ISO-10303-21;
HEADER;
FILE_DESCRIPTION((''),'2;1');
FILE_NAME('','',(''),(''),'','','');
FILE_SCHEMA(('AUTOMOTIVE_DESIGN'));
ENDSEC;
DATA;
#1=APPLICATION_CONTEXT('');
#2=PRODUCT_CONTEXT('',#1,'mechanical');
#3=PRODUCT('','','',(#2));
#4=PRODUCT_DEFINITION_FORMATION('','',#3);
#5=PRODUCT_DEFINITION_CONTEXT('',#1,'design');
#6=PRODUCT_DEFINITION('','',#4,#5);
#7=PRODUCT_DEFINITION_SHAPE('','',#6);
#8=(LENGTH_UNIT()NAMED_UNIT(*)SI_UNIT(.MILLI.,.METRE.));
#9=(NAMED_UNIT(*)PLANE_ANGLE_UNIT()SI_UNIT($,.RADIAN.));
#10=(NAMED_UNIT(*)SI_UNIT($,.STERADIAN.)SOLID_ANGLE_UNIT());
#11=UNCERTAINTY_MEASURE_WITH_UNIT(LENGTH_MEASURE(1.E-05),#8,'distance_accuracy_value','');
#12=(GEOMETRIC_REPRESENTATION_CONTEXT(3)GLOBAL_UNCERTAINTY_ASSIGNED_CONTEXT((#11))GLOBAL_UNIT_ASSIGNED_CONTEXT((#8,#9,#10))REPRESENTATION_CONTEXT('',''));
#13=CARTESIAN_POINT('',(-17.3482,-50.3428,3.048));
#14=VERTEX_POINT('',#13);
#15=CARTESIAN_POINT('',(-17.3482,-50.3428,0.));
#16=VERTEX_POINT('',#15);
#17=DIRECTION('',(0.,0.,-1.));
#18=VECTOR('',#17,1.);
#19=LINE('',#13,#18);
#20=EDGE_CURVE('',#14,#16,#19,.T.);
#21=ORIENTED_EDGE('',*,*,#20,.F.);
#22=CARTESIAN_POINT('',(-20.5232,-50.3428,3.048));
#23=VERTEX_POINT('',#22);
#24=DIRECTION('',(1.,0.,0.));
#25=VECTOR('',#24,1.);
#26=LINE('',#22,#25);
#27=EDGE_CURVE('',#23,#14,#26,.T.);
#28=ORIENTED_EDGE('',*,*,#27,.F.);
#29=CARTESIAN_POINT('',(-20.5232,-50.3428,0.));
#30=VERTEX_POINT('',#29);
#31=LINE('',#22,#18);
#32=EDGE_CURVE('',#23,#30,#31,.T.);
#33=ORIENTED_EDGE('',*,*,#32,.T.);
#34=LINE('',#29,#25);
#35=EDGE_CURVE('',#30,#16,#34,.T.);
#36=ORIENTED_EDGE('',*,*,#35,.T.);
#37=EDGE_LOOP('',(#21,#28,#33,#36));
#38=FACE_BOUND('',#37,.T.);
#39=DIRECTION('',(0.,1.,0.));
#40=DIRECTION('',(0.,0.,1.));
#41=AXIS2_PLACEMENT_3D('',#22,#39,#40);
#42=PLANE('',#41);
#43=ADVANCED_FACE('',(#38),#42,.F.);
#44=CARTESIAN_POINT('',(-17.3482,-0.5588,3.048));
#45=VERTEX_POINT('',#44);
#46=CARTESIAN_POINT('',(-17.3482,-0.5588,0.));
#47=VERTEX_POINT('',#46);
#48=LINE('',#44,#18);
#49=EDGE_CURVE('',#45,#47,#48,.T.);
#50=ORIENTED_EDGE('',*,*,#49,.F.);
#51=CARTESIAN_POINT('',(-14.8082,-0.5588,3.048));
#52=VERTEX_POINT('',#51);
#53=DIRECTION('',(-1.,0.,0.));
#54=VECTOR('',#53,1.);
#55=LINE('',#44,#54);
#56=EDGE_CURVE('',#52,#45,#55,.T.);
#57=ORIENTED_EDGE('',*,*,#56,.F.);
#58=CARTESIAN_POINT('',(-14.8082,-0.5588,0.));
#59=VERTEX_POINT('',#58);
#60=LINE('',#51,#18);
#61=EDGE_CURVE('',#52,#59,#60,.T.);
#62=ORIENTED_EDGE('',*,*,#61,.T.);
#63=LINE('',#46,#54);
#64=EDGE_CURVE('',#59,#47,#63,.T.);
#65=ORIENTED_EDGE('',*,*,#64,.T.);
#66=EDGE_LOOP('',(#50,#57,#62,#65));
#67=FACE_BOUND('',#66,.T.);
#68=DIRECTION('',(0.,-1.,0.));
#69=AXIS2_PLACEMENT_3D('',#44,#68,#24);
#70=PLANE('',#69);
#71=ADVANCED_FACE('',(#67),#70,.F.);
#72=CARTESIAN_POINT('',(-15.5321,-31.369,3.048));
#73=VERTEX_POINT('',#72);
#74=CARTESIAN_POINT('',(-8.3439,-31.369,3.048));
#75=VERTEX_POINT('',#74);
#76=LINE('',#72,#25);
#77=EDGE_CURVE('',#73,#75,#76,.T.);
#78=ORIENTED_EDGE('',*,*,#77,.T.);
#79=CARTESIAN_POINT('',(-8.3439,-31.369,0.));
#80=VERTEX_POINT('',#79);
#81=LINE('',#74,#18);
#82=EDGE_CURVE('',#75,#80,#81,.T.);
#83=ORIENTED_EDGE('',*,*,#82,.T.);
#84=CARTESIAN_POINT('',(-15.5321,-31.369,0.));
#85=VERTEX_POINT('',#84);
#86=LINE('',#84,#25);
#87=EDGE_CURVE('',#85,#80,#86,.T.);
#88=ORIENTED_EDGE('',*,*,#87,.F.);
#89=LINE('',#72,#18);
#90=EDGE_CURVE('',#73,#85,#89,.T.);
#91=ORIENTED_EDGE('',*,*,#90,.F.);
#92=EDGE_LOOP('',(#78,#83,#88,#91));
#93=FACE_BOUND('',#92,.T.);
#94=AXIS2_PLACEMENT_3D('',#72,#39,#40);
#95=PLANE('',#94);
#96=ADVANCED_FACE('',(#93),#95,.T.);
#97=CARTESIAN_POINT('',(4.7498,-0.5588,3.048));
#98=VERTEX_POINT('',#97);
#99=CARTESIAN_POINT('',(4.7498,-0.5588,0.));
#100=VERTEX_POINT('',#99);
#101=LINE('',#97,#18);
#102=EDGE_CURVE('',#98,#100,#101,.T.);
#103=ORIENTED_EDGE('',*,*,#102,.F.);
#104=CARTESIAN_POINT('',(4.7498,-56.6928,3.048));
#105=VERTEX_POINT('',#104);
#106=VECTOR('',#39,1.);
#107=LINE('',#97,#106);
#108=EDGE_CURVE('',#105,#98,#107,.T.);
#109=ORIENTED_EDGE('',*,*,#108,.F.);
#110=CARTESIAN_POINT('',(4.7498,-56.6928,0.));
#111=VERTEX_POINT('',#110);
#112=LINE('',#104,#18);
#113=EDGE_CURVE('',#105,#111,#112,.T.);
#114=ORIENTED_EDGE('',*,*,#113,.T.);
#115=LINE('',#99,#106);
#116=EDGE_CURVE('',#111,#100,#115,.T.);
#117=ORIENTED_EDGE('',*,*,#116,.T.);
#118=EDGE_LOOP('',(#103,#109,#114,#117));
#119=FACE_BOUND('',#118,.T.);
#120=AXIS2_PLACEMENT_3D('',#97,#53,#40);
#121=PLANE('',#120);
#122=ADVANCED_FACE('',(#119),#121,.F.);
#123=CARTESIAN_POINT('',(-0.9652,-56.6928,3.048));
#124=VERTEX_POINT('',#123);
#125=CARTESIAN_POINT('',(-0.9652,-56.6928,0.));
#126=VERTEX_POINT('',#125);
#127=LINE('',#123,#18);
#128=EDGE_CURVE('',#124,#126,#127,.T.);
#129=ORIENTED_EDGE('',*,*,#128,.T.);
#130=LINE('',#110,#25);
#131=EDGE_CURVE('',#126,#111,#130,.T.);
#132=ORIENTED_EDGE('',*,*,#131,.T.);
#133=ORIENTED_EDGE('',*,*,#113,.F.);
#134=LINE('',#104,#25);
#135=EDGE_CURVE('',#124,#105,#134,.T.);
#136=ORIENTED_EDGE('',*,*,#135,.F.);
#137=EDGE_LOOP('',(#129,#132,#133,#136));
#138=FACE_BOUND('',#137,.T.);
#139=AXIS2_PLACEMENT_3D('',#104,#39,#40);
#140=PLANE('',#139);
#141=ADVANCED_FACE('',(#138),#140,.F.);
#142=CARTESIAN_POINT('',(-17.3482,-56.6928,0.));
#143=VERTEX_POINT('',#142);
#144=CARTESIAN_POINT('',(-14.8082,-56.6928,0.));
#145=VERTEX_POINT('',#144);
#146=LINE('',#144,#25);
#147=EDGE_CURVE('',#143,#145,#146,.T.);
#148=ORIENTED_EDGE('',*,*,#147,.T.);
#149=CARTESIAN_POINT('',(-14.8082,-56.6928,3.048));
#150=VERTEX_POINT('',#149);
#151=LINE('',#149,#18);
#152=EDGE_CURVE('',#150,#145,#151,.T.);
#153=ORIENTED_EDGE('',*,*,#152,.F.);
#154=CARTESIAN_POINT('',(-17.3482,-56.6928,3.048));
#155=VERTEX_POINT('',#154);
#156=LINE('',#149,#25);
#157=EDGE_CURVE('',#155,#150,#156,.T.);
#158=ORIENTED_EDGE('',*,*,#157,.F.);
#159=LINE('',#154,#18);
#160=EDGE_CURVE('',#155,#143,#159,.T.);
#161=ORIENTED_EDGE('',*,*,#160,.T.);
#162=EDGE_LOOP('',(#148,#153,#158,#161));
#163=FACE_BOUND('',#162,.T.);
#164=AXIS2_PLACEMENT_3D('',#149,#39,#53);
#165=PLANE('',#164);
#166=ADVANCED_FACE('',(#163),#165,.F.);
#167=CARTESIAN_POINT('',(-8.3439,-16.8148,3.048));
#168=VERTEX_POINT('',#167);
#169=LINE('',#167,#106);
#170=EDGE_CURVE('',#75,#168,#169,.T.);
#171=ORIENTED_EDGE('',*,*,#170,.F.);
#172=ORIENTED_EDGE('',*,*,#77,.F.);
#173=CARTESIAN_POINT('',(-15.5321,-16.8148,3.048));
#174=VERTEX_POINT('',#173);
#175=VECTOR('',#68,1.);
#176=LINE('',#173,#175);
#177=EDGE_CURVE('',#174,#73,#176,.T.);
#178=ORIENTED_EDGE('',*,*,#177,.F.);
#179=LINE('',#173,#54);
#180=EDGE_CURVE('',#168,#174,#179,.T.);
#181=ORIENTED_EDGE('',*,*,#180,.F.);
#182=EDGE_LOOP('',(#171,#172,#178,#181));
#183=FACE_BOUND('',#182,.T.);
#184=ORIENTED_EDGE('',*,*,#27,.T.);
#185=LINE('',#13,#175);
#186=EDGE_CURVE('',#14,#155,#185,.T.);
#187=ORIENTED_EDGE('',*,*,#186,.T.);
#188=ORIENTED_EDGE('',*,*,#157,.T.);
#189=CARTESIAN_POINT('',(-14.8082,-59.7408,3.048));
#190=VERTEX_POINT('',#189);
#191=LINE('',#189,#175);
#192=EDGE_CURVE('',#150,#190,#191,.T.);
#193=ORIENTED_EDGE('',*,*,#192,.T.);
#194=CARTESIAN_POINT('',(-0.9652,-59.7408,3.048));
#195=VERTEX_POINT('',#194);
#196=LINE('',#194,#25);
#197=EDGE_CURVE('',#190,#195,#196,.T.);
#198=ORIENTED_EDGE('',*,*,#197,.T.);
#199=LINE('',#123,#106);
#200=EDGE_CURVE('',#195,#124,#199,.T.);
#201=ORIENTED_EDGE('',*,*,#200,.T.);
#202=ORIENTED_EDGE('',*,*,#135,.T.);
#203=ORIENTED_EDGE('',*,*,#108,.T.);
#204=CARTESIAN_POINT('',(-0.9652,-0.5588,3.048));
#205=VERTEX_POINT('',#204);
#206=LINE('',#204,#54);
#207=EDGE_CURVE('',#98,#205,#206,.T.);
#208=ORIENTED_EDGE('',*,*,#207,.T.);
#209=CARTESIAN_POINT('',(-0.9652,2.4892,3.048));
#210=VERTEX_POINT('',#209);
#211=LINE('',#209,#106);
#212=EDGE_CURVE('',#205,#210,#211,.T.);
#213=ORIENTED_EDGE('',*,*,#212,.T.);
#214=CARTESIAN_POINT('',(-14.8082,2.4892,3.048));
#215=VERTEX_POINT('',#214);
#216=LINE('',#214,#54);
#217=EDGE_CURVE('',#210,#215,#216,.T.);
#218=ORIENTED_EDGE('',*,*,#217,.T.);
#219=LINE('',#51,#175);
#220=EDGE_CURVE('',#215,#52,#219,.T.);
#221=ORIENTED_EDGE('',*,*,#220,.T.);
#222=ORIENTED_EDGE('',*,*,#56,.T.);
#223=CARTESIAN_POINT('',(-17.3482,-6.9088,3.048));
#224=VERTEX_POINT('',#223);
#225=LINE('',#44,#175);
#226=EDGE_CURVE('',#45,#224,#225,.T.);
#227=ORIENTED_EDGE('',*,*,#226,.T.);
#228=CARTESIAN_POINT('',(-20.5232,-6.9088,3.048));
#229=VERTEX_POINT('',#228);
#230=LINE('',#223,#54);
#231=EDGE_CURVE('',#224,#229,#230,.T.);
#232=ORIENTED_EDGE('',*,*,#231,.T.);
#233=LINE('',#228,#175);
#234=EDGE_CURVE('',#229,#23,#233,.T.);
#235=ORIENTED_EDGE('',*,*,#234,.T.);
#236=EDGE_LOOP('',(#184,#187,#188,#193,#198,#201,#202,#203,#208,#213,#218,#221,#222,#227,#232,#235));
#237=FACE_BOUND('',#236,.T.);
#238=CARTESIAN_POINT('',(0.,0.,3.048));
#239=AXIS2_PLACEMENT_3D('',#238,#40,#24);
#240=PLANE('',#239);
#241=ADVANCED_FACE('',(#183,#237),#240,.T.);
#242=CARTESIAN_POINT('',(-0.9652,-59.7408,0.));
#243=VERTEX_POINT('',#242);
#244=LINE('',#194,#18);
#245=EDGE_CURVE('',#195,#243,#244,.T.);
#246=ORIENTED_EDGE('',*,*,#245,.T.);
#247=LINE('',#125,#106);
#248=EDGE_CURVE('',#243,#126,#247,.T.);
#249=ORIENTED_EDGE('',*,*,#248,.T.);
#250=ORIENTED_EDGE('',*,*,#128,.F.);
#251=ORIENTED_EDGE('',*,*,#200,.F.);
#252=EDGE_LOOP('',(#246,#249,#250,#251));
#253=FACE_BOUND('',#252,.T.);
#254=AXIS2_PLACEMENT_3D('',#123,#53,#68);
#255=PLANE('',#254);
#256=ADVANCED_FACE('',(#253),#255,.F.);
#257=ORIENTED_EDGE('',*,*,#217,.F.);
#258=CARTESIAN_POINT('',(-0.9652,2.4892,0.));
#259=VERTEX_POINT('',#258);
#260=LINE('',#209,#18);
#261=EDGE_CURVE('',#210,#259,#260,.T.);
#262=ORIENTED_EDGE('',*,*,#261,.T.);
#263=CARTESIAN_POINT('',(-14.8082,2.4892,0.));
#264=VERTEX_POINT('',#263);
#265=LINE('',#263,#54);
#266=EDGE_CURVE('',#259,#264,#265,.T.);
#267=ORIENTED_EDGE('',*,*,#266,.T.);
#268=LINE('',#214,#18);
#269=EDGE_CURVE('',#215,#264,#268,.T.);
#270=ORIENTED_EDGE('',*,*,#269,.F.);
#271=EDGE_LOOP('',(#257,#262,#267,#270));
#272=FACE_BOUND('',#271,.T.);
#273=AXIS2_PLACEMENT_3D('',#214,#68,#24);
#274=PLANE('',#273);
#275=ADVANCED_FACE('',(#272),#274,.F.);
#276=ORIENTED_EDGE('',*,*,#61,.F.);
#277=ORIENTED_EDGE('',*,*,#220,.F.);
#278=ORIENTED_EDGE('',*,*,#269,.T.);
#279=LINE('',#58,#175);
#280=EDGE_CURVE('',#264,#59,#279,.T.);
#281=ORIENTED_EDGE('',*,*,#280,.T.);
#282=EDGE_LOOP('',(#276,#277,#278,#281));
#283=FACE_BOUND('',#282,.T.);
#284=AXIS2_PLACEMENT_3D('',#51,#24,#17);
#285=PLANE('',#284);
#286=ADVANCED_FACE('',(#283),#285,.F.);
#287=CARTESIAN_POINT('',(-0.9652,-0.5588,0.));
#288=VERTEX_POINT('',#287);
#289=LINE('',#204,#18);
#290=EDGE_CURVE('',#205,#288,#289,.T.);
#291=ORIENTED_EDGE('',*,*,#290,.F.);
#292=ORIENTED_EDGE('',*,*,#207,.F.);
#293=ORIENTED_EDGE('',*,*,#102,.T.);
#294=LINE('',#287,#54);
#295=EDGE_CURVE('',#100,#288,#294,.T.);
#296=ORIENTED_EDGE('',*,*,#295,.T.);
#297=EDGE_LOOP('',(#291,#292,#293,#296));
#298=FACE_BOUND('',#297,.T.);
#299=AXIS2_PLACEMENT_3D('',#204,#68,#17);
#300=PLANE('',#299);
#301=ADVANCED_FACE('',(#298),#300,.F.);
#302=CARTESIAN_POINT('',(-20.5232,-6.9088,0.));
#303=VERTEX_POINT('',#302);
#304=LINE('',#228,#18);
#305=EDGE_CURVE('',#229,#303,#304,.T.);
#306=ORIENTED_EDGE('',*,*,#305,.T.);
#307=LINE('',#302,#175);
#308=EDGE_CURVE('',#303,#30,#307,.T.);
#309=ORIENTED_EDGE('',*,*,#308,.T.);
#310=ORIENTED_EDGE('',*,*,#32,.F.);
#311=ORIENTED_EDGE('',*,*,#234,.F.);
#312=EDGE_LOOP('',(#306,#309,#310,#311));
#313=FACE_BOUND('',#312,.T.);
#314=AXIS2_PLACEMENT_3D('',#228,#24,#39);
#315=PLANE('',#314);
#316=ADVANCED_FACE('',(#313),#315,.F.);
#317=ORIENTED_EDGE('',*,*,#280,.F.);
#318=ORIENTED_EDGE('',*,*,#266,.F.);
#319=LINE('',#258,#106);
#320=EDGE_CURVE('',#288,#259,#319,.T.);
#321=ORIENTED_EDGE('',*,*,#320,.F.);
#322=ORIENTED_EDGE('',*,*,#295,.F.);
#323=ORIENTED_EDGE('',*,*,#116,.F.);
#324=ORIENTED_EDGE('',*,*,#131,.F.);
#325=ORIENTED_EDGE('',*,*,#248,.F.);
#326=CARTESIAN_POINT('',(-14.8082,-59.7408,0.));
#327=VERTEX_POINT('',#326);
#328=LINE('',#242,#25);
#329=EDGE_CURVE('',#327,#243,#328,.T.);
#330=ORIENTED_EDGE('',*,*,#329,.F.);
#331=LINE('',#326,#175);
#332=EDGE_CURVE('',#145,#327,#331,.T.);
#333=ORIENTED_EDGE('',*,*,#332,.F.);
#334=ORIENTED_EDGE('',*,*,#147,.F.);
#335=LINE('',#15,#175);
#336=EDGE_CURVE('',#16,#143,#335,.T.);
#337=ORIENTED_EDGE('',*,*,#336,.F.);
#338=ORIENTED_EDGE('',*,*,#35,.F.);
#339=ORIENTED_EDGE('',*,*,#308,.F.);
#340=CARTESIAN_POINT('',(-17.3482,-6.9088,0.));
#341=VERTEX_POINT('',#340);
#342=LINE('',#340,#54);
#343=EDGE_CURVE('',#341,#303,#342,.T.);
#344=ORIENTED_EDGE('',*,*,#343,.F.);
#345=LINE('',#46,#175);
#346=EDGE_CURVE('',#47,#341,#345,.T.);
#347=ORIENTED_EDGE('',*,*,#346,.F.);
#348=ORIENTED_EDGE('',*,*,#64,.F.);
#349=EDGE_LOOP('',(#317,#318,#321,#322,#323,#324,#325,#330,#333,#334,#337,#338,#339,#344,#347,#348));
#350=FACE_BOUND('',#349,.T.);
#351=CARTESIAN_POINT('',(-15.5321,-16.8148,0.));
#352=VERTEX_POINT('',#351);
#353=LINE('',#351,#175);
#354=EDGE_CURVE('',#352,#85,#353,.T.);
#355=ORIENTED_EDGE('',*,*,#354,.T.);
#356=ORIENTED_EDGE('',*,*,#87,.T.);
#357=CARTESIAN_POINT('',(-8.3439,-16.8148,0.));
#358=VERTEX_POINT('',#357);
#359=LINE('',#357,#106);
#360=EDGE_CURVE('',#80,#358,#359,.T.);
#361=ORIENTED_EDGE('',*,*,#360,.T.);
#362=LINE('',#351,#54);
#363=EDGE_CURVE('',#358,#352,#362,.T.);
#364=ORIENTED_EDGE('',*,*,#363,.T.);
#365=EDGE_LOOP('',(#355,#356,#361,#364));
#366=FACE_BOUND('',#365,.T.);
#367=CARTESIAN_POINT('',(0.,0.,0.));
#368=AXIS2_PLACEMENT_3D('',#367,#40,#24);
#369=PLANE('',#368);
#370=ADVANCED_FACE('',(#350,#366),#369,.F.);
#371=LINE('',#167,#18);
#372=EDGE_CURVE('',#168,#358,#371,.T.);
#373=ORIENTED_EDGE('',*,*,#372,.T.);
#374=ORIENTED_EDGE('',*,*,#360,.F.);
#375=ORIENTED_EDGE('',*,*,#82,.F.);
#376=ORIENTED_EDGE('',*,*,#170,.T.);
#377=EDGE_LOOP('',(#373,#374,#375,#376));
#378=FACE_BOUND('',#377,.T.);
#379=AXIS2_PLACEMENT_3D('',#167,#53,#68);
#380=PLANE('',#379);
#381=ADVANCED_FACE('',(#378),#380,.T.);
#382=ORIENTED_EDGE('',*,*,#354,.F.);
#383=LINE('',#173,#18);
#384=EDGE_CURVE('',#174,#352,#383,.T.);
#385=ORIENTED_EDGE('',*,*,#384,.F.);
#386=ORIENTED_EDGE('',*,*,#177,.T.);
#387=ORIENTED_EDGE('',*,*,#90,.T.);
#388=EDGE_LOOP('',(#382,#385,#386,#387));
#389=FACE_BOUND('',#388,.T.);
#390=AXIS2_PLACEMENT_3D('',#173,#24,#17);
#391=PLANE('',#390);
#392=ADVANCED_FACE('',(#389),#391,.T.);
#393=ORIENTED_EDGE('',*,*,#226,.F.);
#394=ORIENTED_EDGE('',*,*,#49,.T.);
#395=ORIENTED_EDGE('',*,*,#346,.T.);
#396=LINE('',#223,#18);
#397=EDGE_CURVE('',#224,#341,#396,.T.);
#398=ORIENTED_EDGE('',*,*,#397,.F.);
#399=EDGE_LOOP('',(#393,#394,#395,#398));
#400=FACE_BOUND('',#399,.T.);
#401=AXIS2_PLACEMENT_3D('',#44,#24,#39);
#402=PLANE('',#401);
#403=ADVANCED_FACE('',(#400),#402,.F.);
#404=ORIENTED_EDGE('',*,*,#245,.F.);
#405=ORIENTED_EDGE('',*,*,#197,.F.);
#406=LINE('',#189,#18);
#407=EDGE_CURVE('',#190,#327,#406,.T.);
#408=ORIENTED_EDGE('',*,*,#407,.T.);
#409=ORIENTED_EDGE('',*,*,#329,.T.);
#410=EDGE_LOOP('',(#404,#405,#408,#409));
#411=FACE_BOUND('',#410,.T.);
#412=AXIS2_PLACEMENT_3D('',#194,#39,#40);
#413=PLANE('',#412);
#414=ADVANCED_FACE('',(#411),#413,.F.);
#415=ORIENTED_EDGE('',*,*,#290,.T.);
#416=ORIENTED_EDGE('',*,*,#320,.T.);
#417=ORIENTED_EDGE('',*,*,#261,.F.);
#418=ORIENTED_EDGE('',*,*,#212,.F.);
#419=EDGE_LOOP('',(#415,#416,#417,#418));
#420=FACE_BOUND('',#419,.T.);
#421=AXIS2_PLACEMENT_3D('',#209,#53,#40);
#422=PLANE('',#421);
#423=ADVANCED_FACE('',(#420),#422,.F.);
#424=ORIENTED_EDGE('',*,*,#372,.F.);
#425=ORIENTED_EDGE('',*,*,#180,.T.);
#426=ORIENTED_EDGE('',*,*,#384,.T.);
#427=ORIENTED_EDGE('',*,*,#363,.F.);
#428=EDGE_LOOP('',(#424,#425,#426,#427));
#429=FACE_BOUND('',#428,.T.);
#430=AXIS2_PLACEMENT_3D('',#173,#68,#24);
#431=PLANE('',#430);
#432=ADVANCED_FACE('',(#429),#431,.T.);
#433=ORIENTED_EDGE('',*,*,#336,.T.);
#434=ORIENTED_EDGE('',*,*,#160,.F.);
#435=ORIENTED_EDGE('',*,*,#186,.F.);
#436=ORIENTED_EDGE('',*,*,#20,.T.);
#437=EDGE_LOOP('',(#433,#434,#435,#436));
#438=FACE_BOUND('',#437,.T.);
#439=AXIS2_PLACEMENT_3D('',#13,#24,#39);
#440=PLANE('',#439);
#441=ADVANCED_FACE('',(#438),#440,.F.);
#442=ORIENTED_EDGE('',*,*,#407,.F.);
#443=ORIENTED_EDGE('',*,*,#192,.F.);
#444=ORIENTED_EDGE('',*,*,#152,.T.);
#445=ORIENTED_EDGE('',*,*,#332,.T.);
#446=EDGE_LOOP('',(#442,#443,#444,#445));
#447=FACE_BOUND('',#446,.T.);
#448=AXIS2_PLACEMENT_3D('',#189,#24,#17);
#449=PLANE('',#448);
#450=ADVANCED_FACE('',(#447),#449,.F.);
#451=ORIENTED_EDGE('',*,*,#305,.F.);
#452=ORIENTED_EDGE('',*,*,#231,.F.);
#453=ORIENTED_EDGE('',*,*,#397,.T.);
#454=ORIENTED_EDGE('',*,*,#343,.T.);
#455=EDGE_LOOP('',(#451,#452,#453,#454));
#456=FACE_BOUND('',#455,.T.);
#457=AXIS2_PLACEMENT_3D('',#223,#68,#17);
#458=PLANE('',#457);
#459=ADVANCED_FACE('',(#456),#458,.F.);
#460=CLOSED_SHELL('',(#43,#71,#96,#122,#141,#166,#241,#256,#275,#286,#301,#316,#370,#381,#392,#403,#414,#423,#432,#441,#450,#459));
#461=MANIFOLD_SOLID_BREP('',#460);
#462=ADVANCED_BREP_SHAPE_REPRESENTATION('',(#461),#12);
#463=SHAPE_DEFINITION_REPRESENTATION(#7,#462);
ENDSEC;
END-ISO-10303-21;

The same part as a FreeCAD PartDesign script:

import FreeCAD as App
import Part
import Sketcher

V = App.Vector
Q = App.Units.Quantity


def add_polygon(sketch, points):
    """Adds a closed chain of lines whose ends are joined by coincident constraints."""
    first, n = sketch.GeometryCount, len(points)
    for a, b in zip(points, points[1:] + points[:1]):
        sketch.addGeometry(Part.LineSegment(App.Vector(*a, 0), App.Vector(*b, 0)), False)
    for i in range(n):
        sketch.addConstraint(Sketcher.Constraint("Coincident", first + i, 2, first + (i + 1) % n, 1))

doc = App.newDocument("Part")
body = doc.addObject("PartDesign::Body", "Body")

# Sketch on XY plane
sketch1 = doc.addObject("Sketcher::SketchObject", "Sketch")
body.addObject(sketch1)
sketch1.AttachmentSupport = (doc.XY_Plane, [""])
sketch1.MapMode = "FlatFace"
add_polygon(sketch1, [(-17.3, -0.6), (-17.3, -6.9), (-20.5, -6.9), (-20.5, -50.3), (-17.3, -50.3), (-17.3, -56.7), (-14.8, -56.7), (-14.8, -59.7), (-1, -59.7), (-1, -56.7), (4.7, -56.7), (4.7, -0.6), (-1, -0.6), (-1, 2.5), (-14.8, 2.5), (-14.8, -0.6)])  # lines 0-15
add_polygon(sketch1, [(-8.3, -31.4), (-15.5, -31.4), (-15.5, -16.8), (-8.3, -16.8)])  # lines 16-19
sketch1.addConstraint(Sketcher.Constraint("Vertical", 0))
sketch1.addConstraint(Sketcher.Constraint("Horizontal", 1))
sketch1.addConstraint(Sketcher.Constraint("Vertical", 2))
sketch1.addConstraint(Sketcher.Constraint("Horizontal", 3))
sketch1.addConstraint(Sketcher.Constraint("Vertical", 4))
sketch1.addConstraint(Sketcher.Constraint("Horizontal", 5))
sketch1.addConstraint(Sketcher.Constraint("Vertical", 6))
sketch1.addConstraint(Sketcher.Constraint("Horizontal", 7))
sketch1.addConstraint(Sketcher.Constraint("Vertical", 8))
sketch1.addConstraint(Sketcher.Constraint("Horizontal", 9))
sketch1.addConstraint(Sketcher.Constraint("Vertical", 10))
sketch1.addConstraint(Sketcher.Constraint("Horizontal", 11))
sketch1.addConstraint(Sketcher.Constraint("Vertical", 12))
sketch1.addConstraint(Sketcher.Constraint("Horizontal", 13))
sketch1.addConstraint(Sketcher.Constraint("Vertical", 14))
sketch1.addConstraint(Sketcher.Constraint("Horizontal", 15))
sketch1.addConstraint(Sketcher.Constraint("Horizontal", 16))
sketch1.addConstraint(Sketcher.Constraint("Vertical", 17))
sketch1.addConstraint(Sketcher.Constraint("Horizontal", 18))
sketch1.addConstraint(Sketcher.Constraint("Vertical", 19))
sketch1.addConstraint(Sketcher.Constraint("Horizontal", 5, 2, 8, 2))
sketch1.addConstraint(Sketcher.Constraint("Horizontal", 11, 2, 14, 2))
sketch1.addConstraint(Sketcher.Constraint("Vertical", 0, 2, 3, 2))
sketch1.addConstraint(Sketcher.Constraint("Vertical", 8, 2, 11, 2))
sketch1.addConstraint(Sketcher.Constraint("Vertical", 6, 2, 13, 2))
sketch1.addConstraint(Sketcher.Constraint("Equal", 0, 4))
sketch1.addConstraint(Sketcher.Constraint("Equal", 8, 12))
sketch1.addConstraint(Sketcher.Constraint("DistanceX", 5, 1, 5, 2, Q("0.1 in")))
sketch1.addConstraint(Sketcher.Constraint("DistanceY", 0, 2, 0, 1, Q("0.25 in")))
sketch1.addConstraint(Sketcher.Constraint("DistanceY", 2, 2, 2, 1, Q("1.71 in")))
sketch1.addConstraint(Sketcher.Constraint("DistanceY", 6, 2, 6, 1, Q("0.12 in")))
sketch1.addConstraint(Sketcher.Constraint("DistanceX", 1, 2, 1, 1, Q("0.125 in")))
sketch1.addConstraint(Sketcher.Constraint("DistanceX", 7, 1, 7, 2, Q("0.545 in")))
sketch1.addConstraint(Sketcher.Constraint("DistanceX", 9, 1, 9, 2, Q("0.225 in")))
sketch1.addConstraint(Sketcher.Constraint("DistanceX", 16, 2, 16, 1, Q("0.283 in")))
sketch1.addConstraint(Sketcher.Constraint("DistanceY", 17, 1, 17, 2, Q("0.573 in")))
sketch1.addConstraint(Sketcher.Constraint("DistanceY", 17, 2, 0, 2, Q("0.39 in")))
sketch1.addConstraint(Sketcher.Constraint("DistanceX", 0, 2, -1, 1, Q("0.683 in")))
sketch1.addConstraint(Sketcher.Constraint("DistanceY", 0, 2, -1, 1, Q("0.272 in")))
sketch1.addConstraint(Sketcher.Constraint("DistanceX", 16, 2, -1, 1, Q("0.6115 in")))
pad1 = doc.addObject("PartDesign::Pad", "Pad")
body.addObject(pad1)
pad1.Profile = sketch1
pad1.Length = Q("0.12 in")

doc.recompute()
